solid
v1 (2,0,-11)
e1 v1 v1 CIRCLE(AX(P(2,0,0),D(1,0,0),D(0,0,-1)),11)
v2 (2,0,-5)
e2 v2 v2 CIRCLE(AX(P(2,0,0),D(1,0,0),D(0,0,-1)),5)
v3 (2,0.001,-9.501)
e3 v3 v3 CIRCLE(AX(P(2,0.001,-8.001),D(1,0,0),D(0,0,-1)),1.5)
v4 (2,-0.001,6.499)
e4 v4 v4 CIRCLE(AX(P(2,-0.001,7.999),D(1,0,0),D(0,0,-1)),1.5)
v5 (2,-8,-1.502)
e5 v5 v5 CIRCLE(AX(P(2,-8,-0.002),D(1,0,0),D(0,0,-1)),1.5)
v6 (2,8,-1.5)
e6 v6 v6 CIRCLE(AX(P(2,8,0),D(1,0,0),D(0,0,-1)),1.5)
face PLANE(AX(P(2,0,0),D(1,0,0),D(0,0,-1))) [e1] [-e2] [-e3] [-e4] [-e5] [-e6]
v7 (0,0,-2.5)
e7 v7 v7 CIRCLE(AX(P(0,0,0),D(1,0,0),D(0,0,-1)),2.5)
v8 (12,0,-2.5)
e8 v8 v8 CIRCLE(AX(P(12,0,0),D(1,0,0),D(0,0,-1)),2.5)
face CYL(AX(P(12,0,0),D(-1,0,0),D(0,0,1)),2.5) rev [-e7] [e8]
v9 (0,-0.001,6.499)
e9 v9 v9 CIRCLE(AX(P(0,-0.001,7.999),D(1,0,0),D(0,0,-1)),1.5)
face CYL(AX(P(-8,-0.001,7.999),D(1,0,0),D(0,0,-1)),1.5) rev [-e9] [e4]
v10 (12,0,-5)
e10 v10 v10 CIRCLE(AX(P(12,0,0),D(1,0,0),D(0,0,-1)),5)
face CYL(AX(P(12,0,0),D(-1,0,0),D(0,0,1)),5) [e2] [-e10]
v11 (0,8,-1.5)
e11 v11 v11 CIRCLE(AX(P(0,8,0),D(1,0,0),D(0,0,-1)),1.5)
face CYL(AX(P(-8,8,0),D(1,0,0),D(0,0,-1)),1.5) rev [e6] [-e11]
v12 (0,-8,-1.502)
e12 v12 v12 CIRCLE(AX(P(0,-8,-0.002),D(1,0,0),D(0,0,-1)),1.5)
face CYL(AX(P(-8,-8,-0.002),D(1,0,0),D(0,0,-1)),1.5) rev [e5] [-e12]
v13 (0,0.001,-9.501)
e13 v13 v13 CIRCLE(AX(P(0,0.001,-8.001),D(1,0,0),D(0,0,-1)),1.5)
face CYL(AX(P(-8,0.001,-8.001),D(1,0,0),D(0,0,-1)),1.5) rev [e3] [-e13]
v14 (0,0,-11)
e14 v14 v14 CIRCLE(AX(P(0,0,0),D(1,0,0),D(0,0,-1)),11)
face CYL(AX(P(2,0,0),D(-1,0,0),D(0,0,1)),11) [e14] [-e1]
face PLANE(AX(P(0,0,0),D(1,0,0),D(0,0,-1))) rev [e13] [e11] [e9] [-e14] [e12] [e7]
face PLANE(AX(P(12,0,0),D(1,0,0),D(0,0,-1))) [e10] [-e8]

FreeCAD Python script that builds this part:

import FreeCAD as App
import Part
import Sketcher

V = App.Vector

doc = App.newDocument("Part")
body = doc.addObject("PartDesign::Body", "Body")

# Sketch on YZ plane
sketch1 = body.newObject("Sketcher::SketchObject", "Sketch")
sketch1.AttachmentSupport = (doc.getObject("YZ_Plane"), [""])
sketch1.MapMode = "FlatFace"
sketch1.addGeometry(Part.Circle(V(0, 0, 0), V(0, 0, 1), 11), False)
sketch1.addConstraint([
    Sketcher.Constraint("Coincident", 0, 3, -1, 1),
    Sketcher.Constraint("Diameter", 0, 22.0),
])
pad1 = body.newObject("PartDesign::Pad", "Pad")
pad1.Profile = sketch1
pad1.Length = 2

# Sketch on YZ plane
sketch2 = body.newObject("Sketcher::SketchObject", "Sketch001")
sketch2.AttachmentSupport = (doc.getObject("YZ_Plane"), [""])
sketch2.MapMode = "FlatFace"
sketch2.AttachmentOffset = App.Placement(V(0, 0, 2), App.Rotation())
sketch2.addGeometry([
    Part.Circle(V(0, 0, 0), V(0, 0, 1), 5),
    Part.Circle(V(0, 0, 0), V(0, 0, 1), 2.5),
], False)
sketch2.addConstraint([
    Sketcher.Constraint("Coincident", 0, 3, -1, 1),
    Sketcher.Constraint("Coincident", 1, 3, -1, 1),
    Sketcher.Constraint("Diameter", 0, 10.0),
    Sketcher.Constraint("Diameter", 1, 5.0),
])
pad2 = body.newObject("PartDesign::Pad", "Pad001")
pad2.Profile = sketch2
pad2.Length = 10

# Sketch on YZ plane
sketch3 = body.newObject("Sketcher::SketchObject", "Sketch002")
sketch3.AttachmentSupport = (doc.getObject("YZ_Plane"), [""])
sketch3.MapMode = "FlatFace"
sketch3.AttachmentOffset = App.Placement(V(0, 0, 2), App.Rotation())
sketch3.addGeometry([
    Part.Circle(V(8, 0, 0), V(0, 0, 1), 1.5),
    Part.Circle(V(0, -8, 0), V(0, 0, 1), 1.5),
    Part.Circle(V(-8, 0, 0), V(0, 0, 1), 1.5),
    Part.Circle(V(0, 8, 0), V(0, 0, 1), 1.5),
], False)
sketch3.addConstraint([
    Sketcher.Constraint("Equal", 0, 1),
    Sketcher.Constraint("Equal", 1, 2),
    Sketcher.Constraint("Equal", 2, 3),
    Sketcher.Constraint("PointOnObject", 0, 3, -1),
    Sketcher.Constraint("Diameter", 0, 3.0),
    Sketcher.Constraint("DistanceX", -1, 1, 0, 3, 8.0),
    Sketcher.Constraint("DistanceX", 2, 3, -1, 1, 8.0),
    Sketcher.Constraint("DistanceY", 1, 3, 3, 3, 16.0),
    Sketcher.Constraint("DistanceX", -1, 1, 1, 3, 0.001),
    Sketcher.Constraint("DistanceY", 1, 3, -1, 1, 8.001),
    Sketcher.Constraint("DistanceY", 2, 3, -1, 1, 0.002),
    Sketcher.Constraint("DistanceX", 3, 3, -1, 1, 0.001),
])
pocket1 = body.newObject("PartDesign::Pocket", "Pocket")
pocket1.Profile = sketch3
pocket1.Length = 10

# Sketch on YZ plane
sketch4 = body.newObject("Sketcher::SketchObject", "Sketch003")
sketch4.AttachmentSupport = (doc.getObject("YZ_Plane"), [""])
sketch4.MapMode = "FlatFace"
sketch4.AttachmentOffset = App.Placement(V(0, 0, 2), App.Rotation())
sketch4.addGeometry(Part.Circle(V(0, 0, 0), V(0, 0, 1), 2.5), False)
sketch4.addConstraint([
    Sketcher.Constraint("Coincident", 0, 3, -1, 1),
    Sketcher.Constraint("Diameter", 0, 5.0),
])
pocket2 = body.newObject("PartDesign::Pocket", "Pocket001")
pocket2.Profile = sketch4
pocket2.Type = "ThroughAll"

doc.recompute()
